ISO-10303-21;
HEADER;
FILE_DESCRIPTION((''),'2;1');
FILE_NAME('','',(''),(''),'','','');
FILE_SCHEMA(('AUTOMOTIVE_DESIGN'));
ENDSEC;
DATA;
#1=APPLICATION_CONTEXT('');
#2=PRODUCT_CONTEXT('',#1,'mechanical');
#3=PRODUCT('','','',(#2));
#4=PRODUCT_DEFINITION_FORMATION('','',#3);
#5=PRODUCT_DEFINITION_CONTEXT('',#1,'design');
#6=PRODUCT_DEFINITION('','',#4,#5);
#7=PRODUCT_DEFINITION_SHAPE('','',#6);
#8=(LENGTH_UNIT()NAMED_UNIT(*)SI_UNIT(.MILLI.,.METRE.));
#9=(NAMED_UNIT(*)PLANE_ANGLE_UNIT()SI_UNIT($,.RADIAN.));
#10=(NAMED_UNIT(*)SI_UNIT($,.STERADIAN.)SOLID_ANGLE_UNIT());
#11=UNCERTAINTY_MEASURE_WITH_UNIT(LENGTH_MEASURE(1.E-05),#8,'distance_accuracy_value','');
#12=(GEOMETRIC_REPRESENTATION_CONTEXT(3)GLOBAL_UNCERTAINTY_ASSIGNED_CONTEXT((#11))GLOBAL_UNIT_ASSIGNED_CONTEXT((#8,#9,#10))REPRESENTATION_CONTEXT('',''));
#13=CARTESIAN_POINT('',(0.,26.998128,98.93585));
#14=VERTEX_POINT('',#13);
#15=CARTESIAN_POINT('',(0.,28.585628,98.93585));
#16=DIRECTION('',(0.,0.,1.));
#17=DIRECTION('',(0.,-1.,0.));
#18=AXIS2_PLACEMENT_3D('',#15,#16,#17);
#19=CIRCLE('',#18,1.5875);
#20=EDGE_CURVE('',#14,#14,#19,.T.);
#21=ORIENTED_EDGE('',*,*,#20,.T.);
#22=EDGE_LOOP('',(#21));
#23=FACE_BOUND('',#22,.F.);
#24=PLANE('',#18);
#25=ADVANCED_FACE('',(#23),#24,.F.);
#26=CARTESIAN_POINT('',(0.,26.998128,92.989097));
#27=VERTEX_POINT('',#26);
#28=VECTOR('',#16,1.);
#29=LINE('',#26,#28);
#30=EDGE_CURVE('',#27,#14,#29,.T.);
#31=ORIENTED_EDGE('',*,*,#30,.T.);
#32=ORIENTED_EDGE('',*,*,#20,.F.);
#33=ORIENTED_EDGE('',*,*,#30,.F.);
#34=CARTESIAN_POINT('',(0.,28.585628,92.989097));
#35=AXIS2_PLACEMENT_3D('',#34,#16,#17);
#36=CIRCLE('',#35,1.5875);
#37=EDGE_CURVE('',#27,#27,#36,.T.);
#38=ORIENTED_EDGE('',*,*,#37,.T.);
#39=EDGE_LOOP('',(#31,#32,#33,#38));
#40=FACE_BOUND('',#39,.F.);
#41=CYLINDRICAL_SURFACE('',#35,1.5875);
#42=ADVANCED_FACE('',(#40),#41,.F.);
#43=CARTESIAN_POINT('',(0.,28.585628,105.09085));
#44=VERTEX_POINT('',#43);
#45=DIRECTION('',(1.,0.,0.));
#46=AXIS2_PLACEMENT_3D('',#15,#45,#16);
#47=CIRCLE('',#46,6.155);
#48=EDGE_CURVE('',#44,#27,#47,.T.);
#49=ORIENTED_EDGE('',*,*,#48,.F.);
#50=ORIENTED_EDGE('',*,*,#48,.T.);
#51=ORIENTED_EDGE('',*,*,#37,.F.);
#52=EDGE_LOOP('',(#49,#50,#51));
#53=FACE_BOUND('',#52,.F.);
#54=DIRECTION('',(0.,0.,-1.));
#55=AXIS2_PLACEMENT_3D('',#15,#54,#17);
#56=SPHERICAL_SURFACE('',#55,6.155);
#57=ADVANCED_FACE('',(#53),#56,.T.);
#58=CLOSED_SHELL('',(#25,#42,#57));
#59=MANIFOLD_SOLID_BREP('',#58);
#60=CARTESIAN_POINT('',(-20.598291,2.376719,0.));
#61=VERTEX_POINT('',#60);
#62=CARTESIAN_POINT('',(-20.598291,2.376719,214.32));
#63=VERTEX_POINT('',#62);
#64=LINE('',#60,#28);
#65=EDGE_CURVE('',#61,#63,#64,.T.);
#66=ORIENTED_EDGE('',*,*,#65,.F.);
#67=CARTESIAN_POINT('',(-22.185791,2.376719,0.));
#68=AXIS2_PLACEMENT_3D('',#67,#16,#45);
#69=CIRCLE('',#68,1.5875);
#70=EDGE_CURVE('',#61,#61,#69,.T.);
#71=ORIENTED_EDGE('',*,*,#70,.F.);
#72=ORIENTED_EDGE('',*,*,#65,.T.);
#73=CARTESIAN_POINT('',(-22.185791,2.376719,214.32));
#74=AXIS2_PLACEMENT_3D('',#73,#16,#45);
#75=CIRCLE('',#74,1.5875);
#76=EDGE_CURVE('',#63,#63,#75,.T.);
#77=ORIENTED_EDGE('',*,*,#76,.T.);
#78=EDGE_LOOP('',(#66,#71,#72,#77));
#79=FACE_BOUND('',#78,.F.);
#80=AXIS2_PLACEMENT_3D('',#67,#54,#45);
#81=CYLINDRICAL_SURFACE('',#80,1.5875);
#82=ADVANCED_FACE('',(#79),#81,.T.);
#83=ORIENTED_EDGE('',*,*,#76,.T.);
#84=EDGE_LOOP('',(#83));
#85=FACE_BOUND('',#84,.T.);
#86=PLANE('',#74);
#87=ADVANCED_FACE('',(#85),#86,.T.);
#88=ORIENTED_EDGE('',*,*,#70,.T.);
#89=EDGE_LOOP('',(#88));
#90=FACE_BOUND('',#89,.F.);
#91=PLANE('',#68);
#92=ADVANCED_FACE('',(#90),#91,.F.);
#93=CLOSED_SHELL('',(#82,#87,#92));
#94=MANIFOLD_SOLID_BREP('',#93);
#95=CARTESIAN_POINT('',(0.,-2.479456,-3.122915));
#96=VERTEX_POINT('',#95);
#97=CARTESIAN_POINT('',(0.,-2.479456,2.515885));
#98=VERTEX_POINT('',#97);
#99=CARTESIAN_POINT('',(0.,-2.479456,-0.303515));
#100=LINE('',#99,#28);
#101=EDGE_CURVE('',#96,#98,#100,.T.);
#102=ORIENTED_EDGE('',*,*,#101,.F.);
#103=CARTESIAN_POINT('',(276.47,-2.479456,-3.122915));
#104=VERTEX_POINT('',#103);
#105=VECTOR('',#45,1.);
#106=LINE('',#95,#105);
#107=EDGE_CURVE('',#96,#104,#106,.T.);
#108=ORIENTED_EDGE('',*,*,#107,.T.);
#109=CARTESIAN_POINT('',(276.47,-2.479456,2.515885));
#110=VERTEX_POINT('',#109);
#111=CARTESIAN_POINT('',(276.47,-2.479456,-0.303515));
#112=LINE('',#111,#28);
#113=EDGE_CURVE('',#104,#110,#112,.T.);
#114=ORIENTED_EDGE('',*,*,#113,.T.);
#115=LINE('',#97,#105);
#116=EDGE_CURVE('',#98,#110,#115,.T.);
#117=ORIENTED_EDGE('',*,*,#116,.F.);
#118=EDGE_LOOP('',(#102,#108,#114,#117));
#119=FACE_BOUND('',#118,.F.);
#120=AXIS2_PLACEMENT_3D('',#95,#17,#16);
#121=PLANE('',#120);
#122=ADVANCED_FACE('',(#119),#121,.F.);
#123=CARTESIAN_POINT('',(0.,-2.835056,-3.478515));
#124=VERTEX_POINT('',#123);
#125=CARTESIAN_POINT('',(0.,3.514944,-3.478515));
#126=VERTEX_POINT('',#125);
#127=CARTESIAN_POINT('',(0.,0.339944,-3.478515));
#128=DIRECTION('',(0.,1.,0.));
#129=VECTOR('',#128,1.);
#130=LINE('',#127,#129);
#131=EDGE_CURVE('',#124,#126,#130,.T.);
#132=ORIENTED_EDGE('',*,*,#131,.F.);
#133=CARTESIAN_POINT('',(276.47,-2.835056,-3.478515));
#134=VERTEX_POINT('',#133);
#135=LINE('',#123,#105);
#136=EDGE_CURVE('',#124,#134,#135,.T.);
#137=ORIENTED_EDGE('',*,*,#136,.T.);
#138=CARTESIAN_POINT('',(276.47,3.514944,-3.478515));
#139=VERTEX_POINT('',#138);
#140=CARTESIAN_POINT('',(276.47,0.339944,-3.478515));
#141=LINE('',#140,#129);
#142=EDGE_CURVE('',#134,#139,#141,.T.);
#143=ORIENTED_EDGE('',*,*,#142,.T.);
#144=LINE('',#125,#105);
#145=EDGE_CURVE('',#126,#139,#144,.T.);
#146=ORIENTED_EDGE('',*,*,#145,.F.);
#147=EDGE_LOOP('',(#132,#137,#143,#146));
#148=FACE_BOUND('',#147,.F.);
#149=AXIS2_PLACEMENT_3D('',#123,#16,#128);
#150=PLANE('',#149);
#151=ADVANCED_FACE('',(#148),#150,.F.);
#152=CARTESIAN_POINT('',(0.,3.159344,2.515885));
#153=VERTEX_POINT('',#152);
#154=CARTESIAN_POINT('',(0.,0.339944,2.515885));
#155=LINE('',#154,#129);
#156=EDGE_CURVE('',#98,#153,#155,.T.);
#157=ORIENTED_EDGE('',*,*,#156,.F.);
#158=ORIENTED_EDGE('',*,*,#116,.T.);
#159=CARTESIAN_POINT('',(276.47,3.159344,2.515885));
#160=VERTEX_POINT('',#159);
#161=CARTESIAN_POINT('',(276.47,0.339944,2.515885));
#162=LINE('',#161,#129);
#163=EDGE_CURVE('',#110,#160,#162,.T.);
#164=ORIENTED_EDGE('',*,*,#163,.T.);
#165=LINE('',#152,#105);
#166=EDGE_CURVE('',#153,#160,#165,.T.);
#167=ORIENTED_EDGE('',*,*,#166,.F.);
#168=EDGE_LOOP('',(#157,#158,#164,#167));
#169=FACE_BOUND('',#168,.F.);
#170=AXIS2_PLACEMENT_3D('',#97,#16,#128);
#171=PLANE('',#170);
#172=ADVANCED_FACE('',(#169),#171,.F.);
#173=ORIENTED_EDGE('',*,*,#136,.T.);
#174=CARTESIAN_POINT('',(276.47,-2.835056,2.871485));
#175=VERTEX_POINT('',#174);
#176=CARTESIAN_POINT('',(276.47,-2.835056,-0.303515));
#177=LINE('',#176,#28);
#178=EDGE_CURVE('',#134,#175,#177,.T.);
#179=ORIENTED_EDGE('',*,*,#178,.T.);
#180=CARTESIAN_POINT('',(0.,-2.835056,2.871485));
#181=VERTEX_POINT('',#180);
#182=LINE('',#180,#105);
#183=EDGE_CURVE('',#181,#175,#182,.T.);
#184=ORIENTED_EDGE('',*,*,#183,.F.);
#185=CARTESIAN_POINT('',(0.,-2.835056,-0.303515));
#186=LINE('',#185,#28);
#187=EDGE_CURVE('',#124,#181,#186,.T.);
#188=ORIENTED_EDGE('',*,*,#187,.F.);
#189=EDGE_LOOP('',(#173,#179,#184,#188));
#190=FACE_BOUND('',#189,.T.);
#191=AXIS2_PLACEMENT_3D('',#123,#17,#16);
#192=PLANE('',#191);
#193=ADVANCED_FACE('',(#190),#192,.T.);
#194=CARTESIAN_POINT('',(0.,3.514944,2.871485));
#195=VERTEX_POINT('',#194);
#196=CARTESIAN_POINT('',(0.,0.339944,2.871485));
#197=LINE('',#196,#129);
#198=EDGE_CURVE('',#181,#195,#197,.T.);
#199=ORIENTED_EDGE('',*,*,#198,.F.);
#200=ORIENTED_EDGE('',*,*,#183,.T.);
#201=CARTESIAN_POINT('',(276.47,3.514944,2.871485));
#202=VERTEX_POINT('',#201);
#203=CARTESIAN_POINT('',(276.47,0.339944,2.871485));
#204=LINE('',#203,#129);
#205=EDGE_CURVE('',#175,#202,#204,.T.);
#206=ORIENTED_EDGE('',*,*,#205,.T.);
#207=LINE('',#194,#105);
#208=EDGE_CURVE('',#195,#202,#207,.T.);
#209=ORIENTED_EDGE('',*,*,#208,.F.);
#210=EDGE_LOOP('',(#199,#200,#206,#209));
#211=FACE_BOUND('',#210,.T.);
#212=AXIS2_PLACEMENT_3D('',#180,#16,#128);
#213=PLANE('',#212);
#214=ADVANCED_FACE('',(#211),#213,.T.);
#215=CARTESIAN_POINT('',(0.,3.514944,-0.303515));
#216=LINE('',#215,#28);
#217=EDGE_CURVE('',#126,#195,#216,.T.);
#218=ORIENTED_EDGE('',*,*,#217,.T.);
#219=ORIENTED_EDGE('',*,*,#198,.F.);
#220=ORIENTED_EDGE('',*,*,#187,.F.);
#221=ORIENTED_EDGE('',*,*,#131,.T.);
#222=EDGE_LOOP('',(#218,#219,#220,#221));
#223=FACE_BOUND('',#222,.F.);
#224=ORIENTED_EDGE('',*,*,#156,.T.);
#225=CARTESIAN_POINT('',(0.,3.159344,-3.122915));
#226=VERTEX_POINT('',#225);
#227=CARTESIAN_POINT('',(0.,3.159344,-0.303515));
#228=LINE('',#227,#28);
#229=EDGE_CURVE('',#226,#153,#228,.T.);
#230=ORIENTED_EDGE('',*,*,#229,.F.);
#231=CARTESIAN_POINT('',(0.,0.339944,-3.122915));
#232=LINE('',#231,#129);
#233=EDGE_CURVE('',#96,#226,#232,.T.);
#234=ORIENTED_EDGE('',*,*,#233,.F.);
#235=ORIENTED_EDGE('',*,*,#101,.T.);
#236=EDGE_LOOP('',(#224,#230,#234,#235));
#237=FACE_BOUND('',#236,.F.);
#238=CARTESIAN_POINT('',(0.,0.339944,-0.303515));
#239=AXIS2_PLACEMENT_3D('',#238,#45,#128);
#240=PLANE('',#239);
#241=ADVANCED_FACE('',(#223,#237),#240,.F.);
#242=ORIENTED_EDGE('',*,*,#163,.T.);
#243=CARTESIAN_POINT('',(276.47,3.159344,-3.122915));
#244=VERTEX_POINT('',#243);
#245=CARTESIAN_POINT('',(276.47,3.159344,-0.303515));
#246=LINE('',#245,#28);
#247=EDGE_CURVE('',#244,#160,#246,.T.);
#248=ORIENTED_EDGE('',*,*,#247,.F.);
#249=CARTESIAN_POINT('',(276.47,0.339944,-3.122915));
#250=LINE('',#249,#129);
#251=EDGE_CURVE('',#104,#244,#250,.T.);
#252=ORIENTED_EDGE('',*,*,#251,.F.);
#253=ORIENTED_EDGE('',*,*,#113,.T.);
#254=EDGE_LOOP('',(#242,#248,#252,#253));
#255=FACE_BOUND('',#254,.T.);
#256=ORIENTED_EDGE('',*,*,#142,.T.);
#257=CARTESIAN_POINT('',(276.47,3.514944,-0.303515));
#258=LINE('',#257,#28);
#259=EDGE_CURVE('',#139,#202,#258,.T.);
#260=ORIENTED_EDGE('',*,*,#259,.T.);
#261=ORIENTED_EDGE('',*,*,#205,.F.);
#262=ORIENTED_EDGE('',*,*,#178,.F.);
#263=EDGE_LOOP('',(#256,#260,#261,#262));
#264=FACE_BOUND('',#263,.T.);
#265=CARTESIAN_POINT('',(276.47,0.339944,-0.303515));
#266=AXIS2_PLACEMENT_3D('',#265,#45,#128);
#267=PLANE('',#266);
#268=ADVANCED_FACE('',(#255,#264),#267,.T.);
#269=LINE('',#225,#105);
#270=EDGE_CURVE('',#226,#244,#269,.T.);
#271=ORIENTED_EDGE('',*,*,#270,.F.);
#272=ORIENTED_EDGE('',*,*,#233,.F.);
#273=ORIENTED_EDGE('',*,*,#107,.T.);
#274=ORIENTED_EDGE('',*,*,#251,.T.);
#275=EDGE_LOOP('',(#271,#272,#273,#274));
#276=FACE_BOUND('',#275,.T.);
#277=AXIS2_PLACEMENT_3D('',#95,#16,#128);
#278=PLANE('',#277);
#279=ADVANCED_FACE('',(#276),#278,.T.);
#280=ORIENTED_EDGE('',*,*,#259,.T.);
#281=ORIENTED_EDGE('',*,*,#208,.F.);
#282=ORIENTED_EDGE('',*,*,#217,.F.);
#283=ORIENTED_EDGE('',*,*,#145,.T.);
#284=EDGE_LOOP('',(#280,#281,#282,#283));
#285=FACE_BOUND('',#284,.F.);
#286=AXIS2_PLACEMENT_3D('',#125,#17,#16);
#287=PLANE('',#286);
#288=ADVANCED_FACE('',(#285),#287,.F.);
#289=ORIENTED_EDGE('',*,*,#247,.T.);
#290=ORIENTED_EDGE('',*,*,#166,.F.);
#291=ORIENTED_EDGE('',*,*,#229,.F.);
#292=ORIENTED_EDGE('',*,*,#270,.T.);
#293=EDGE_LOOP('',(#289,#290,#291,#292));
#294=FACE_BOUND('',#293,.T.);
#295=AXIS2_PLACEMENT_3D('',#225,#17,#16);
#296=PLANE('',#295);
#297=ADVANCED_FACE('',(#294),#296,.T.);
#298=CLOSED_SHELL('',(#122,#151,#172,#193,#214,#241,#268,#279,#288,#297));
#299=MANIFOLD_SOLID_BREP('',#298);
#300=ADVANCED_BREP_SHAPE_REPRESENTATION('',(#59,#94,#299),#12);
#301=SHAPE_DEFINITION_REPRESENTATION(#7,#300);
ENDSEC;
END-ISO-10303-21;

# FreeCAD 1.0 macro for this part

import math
import FreeCAD as App
import Part
import Sketcher

V = App.Vector
Q = App.Units.Quantity


def add_polygon(sketch, points):
    """Adds a closed chain of lines whose ends are joined by coincident constraints."""
    first, n = sketch.GeometryCount, len(points)
    for a, b in zip(points, points[1:] + points[:1]):
        sketch.addGeometry(Part.LineSegment(App.Vector(*a, 0), App.Vector(*b, 0)), False)
    for i in range(n):
        sketch.addConstraint(Sketcher.Constraint("Coincident", first + i, 2, first + (i + 1) % n, 1))

doc = App.newDocument("Part")
body = doc.addObject("PartDesign::Body", "Body")

# Sketch on YZ plane
sketch1 = body.newObject("Sketcher::SketchObject", "Sketch")
sketch1.AttachmentSupport = (doc.getObject("YZ_Plane"), [""])
sketch1.MapMode = "FlatFace"
sketch1.addGeometry(Part.LineSegment(V(28.6, 98.9, 0), V(28.6, 105.1, 0)), False)
sketch1.addGeometry(Part.ArcOfCircle(Part.Circle(V(28.6, 98.9, 0), V(0, 0, 1), 6.2), math.radians(90), math.radians(255)), False)
sketch1.addGeometry(Part.LineSegment(V(27, 93, 0), V(27, 98.9, 0)), False)
sketch1.addGeometry(Part.LineSegment(V(27, 98.9, 0), V(28.6, 98.9, 0)), False)
sketch1.addGeometry(Part.LineSegment(V(28.6, 93, 0), V(28.6, 105.1, 0)), True)  # axis
sketch1.addConstraint(Sketcher.Constraint("Coincident", 0, 2, 1, 1))
sketch1.addConstraint(Sketcher.Constraint("Coincident", 1, 2, 2, 1))
sketch1.addConstraint(Sketcher.Constraint("Coincident", 2, 2, 3, 1))
sketch1.addConstraint(Sketcher.Constraint("Coincident", 3, 2, 0, 1))
sketch1.addConstraint(Sketcher.Constraint("Vertical", 0))
sketch1.addConstraint(Sketcher.Constraint("Vertical", 2))
sketch1.addConstraint(Sketcher.Constraint("Horizontal", 3))
sketch1.addConstraint(Sketcher.Constraint("Vertical", 4))
sketch1.addConstraint(Sketcher.Constraint("Coincident", 3, 2, 1, 3))
sketch1.addConstraint(Sketcher.Constraint("Coincident", 4, 2, 0, 2))
sketch1.addConstraint(Sketcher.Constraint("Horizontal", 1, 2, 4, 1))
sketch1.addConstraint(Sketcher.Constraint("DistanceX", 3, 1, 3, 2, Q("0.0625 in")))
sketch1.addConstraint(Sketcher.Constraint("Radius", 1, 6.155))
sketch1.addConstraint(Sketcher.Constraint("DistanceY", -1, 1, 1, 3, 98.93585))
sketch1.addConstraint(Sketcher.Constraint("DistanceX", -1, 1, 1, 3, 28.585628))
revolution = body.newObject("PartDesign::Revolution", "Revolution")
revolution.Profile = sketch1
revolution.ReferenceAxis = (sketch1, ["Axis0"])
revolution.Angle = 360
body2 = doc.addObject("PartDesign::Body", "Body001")

# Sketch on YZ plane
sketch2 = body2.newObject("Sketcher::SketchObject", "Sketch001")
sketch2.AttachmentSupport = (doc.getObject("YZ_Plane001"), [""])
sketch2.MapMode = "FlatFace"
add_polygon(sketch2, [(-3, 3), (-3, -3), (4, -3), (4, 3)])  # lines 0-3
add_polygon(sketch2, [(3, -3), (-2, -3), (-2, 3), (3, 3)])  # lines 4-7
sketch2.addConstraint(Sketcher.Constraint("Vertical", 0))
sketch2.addConstraint(Sketcher.Constraint("Horizontal", 1))
sketch2.addConstraint(Sketcher.Constraint("Vertical", 2))
sketch2.addConstraint(Sketcher.Constraint("Horizontal", 3))
sketch2.addConstraint(Sketcher.Constraint("Horizontal", 4))
sketch2.addConstraint(Sketcher.Constraint("Vertical", 5))
sketch2.addConstraint(Sketcher.Constraint("Horizontal", 6))
sketch2.addConstraint(Sketcher.Constraint("Vertical", 7))
sketch2.addConstraint(Sketcher.Constraint("Equal", 3, 0))
sketch2.addConstraint(Sketcher.Constraint("Equal", 6, 5))
sketch2.addConstraint(Sketcher.Constraint("DistanceX", 1, 1, 1, 2, Q("0.25 in")))
sketch2.addConstraint(Sketcher.Constraint("DistanceX", 4, 2, 4, 1, Q("0.222 in")))
sketch2.addConstraint(Sketcher.Constraint("DistanceX", 0, 2, 4, 2, Q("0.014 in")))
sketch2.addConstraint(Sketcher.Constraint("DistanceY", 0, 2, 4, 2, Q("0.014 in")))
sketch2.addConstraint(Sketcher.Constraint("DistanceX", 0, 2, -1, 1, 2.835056))
sketch2.addConstraint(Sketcher.Constraint("DistanceY", 0, 2, -1, 1, 3.478515))
pad1 = body2.newObject("PartDesign::Pad", "Pad")
pad1.Profile = sketch2
pad1.Length = 276.47
body3 = doc.addObject("PartDesign::Body", "Body002")

# Sketch on XY plane
sketch3 = body3.newObject("Sketcher::SketchObject", "Sketch002")
sketch3.AttachmentSupport = (doc.getObject("XY_Plane002"), [""])
sketch3.MapMode = "FlatFace"
sketch3.addGeometry(Part.Circle(V(-22.2, 2.4, 0), V(0, 0, 1), 1.6), False)
sketch3.addConstraint(Sketcher.Constraint("Diameter", 0, Q("0.125 in")))
sketch3.addConstraint(Sketcher.Constraint("DistanceX", 0, 3, -1, 1, 22.185791))
sketch3.addConstraint(Sketcher.Constraint("DistanceY", -1, 1, 0, 3, 2.376719))
pad2 = body3.newObject("PartDesign::Pad", "Pad001")
pad2.Profile = sketch3
pad2.Length = 214.32

doc.recompute()
